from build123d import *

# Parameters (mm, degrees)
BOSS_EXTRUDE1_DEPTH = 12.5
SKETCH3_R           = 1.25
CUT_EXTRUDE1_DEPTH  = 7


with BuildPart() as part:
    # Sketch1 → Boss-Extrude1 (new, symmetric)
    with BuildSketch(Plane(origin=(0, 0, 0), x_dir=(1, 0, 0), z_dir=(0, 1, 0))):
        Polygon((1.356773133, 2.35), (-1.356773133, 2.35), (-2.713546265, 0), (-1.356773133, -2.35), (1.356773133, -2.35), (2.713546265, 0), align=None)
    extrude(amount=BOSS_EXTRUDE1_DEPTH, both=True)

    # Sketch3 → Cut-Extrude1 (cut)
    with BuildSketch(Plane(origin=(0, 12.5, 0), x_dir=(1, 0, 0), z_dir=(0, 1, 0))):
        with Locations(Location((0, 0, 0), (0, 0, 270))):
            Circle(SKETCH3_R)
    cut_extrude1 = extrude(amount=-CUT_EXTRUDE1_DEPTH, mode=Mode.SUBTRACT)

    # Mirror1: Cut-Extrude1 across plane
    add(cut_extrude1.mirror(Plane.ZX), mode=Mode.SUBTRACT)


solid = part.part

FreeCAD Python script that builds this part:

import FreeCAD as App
import Part
import Sketcher
Q = App.Units.Quantity


def add_polygon(sketch, points):
    """Adds a closed chain of lines whose ends are joined by coincident constraints."""
    first, n = sketch.GeometryCount, len(points)
    for a, b in zip(points, points[1:] + points[:1]):
        sketch.addGeometry(Part.LineSegment(App.Vector(*a, 0), App.Vector(*b, 0)), False)
    for i in range(n):
        sketch.addConstraint(Sketcher.Constraint("Coincident", first + i, 2, first + (i + 1) % n, 1))

doc = App.newDocument("Part")
body = doc.addObject("PartDesign::Body", "Body")

# Sketch on XZ plane
sketch1 = doc.addObject("Sketcher::SketchObject", "Sketch")
body.addObject(sketch1)
sketch1.AttachmentSupport = (doc.XZ_Plane, [""])
sketch1.MapMode = "FlatFace"
add_polygon(sketch1, [(1.356773, -2.35), (-1.356773, -2.35), (-2.713546, 0), (-1.356773, 2.35), (1.356773, 2.35), (2.713546, 0)])  # lines 0-5
sketch1.addConstraint([
    Sketcher.Constraint("Horizontal", 0),
    Sketcher.Constraint("Horizontal", 3),
    Sketcher.Constraint("Symmetric", 0, 2, 3, 2, -1, 1),
    Sketcher.Constraint("Symmetric", 1, 2, 4, 2, -1, 1),
    Sketcher.Constraint("PointOnObject", 1, 2, -1),
    Sketcher.Constraint("Parallel", 2, 5),
    Sketcher.Constraint("Vertical", 0, 2, 2, 2),
    Sketcher.Constraint("Angle", 1, Q("120 deg")),
    Sketcher.Constraint("DistanceY", 0, 2, 2, 2, Q("4.7 mm")),
    Sketcher.Constraint("DistanceX", 0, 2, 0, 1, Q("2.713546 mm")),
])
pad1 = doc.addObject("PartDesign::Pad", "Pad")
body.addObject(pad1)
pad1.Profile = sketch1
pad1.Length = 25
pad1.Midplane = True

# Sketch on XZ plane
sketch2 = doc.addObject("Sketcher::SketchObject", "Sketch001")
body.addObject(sketch2)
sketch2.AttachmentSupport = (doc.XZ_Plane, [""])
sketch2.MapMode = "FlatFace"
sketch2.AttachmentOffset = App.Placement(App.Vector(0, 0, -12.5), App.Rotation())
sketch2.addGeometry(Part.Circle(App.Vector(0, 0, 0), App.Vector(0, 0, 1), 1.25), False)
sketch2.addConstraint([
    Sketcher.Constraint("Coincident", 0, 3, -1, 1),
    Sketcher.Constraint("Diameter", 0, Q("2.5 mm")),
])
pocket1 = doc.addObject("PartDesign::Pocket", "Pocket")
body.addObject(pocket1)
pocket1.Profile = sketch2
pocket1.Length = 7
pocket1.Reversed = True
doc.recompute()

mirrored = doc.addObject("PartDesign::Mirrored", "Mirrored")
body.addObject(mirrored)
mirrored.Originals = [pocket1]
mirrored.MirrorPlane = (doc.XZ_Plane, [""])
body.Tip = mirrored

doc.recompute()
